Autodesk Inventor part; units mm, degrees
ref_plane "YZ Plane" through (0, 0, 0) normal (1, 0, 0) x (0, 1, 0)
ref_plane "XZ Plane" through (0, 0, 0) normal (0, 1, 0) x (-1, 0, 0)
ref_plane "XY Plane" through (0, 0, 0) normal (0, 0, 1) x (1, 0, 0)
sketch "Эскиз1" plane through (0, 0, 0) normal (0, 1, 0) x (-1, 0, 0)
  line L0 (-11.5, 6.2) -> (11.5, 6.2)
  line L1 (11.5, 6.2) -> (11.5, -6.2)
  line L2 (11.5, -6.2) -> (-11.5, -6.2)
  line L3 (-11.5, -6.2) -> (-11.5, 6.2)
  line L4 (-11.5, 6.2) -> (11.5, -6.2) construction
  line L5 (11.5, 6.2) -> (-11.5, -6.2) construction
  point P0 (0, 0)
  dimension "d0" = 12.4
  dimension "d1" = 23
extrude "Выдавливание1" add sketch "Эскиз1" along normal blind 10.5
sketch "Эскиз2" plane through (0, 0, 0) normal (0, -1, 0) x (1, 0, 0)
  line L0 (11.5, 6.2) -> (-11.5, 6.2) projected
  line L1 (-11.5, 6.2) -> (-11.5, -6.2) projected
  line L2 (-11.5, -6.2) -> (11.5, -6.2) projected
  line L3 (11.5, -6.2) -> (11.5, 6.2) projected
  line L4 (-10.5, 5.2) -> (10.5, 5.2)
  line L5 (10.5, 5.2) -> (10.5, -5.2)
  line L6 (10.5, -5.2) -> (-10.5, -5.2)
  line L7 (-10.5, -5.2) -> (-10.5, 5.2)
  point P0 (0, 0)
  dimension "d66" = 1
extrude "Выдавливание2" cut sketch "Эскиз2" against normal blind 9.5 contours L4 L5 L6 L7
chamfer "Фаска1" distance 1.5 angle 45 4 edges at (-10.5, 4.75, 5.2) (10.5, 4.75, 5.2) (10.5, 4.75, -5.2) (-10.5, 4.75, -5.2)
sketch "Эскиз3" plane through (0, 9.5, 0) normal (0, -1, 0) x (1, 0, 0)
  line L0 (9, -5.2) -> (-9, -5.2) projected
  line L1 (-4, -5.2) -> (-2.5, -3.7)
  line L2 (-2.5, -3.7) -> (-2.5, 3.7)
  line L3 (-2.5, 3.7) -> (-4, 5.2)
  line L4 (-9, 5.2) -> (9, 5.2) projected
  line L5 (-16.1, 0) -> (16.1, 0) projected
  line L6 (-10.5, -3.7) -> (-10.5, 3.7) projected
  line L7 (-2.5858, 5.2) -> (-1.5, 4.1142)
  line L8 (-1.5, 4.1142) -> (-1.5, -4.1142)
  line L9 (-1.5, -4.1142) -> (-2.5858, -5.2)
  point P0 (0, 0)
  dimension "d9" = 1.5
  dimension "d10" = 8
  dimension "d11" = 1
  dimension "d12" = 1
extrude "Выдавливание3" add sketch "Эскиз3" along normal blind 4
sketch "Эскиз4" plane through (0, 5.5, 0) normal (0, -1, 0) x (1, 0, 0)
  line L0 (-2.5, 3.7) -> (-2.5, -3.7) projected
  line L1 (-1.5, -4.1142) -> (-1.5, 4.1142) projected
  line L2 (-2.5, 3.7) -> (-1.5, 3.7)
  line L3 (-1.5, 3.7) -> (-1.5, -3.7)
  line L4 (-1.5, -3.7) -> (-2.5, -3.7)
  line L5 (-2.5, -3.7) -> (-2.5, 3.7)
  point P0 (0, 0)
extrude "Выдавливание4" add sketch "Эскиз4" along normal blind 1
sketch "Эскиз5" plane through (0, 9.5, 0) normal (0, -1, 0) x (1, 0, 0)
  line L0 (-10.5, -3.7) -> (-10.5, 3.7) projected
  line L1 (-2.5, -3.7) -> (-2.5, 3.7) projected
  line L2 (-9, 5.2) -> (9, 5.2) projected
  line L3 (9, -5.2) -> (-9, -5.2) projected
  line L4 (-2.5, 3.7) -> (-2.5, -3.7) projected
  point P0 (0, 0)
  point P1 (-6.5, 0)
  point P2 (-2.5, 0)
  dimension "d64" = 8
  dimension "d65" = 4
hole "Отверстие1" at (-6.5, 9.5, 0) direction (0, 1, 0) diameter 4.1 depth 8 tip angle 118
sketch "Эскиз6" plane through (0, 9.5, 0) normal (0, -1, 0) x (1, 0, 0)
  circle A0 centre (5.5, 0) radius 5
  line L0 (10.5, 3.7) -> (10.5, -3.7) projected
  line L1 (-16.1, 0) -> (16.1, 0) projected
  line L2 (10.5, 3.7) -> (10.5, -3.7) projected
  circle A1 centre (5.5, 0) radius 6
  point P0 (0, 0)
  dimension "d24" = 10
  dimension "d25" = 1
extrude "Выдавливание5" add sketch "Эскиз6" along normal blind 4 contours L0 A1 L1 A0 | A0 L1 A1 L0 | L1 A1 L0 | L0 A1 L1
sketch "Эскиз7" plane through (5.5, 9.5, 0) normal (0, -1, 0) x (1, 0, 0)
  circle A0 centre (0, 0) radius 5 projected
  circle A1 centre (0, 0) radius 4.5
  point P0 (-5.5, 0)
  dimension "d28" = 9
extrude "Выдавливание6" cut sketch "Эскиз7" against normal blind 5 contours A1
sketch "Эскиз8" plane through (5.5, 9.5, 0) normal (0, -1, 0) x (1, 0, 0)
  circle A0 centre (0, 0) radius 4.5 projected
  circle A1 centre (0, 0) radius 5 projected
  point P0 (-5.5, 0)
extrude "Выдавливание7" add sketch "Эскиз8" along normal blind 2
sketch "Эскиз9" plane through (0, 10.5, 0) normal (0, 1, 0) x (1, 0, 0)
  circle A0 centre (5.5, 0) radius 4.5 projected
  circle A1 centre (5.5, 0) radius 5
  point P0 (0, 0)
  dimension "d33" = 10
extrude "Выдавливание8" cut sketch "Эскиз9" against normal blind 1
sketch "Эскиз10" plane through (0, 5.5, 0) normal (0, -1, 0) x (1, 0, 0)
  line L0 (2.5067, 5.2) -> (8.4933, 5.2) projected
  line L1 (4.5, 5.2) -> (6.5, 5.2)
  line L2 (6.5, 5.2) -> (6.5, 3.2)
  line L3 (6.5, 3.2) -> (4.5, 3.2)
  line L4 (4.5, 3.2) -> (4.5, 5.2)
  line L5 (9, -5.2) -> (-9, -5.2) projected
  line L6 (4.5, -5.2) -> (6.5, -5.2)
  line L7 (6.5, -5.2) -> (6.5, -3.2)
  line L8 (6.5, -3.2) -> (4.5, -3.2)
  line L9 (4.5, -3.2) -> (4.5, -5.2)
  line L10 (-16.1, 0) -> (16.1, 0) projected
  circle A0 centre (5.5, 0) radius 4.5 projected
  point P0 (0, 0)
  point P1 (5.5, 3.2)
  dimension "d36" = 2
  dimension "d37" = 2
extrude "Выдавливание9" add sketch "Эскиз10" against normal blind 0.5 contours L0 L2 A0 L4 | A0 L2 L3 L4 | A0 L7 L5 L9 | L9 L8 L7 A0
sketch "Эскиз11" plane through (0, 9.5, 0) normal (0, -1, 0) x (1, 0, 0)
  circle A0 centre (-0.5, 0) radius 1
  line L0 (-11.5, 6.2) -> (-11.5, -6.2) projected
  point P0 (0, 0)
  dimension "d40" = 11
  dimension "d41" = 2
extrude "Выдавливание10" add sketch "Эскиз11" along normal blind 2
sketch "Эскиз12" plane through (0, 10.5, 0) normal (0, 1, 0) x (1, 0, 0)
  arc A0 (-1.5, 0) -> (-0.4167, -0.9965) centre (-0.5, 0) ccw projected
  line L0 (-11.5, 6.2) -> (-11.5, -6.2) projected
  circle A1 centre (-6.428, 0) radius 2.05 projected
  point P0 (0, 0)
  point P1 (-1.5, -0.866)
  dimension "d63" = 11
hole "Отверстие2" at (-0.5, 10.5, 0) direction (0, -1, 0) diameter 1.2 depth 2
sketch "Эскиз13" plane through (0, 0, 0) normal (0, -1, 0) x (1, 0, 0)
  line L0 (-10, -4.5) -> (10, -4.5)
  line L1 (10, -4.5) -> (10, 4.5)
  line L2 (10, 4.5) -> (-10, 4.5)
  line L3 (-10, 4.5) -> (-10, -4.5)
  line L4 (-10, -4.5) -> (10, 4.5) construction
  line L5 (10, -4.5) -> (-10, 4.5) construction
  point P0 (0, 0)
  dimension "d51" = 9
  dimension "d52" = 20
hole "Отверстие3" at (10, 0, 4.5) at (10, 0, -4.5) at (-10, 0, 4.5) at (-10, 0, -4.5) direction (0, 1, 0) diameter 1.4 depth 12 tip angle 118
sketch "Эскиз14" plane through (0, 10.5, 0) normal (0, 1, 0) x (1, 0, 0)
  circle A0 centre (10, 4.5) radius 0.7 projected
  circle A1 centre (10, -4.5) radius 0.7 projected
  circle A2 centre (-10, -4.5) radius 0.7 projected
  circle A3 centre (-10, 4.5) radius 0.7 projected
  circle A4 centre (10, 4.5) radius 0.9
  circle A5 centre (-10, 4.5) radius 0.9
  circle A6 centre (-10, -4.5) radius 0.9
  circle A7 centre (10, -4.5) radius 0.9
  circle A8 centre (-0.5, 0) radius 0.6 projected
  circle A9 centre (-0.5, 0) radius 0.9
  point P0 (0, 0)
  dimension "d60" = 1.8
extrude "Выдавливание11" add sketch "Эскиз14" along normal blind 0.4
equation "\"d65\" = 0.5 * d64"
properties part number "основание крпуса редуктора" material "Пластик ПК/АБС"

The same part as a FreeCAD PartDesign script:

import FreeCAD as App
import Part
import Sketcher
from FreeCAD import Vector
Q = App.Units.Quantity


def edges_at(feature, points):
    """Names of the edges that pass closest to the given points."""
    edges = feature.Shape.Edges
    near = lambda p: min(range(len(edges)), key=lambda i: edges[i].distToShape(Part.Vertex(*p))[0])
    return sorted({f"Edge{near(p) + 1}" for p in points})


def add_polygon(sketch, points):
    """Adds a closed chain of lines whose ends are joined by coincident constraints."""
    first, n = sketch.GeometryCount, len(points)
    for a, b in zip(points, points[1:] + points[:1]):
        sketch.addGeometry(Part.LineSegment(App.Vector(*a, 0), App.Vector(*b, 0)), False)
    for i in range(n):
        sketch.addConstraint(Sketcher.Constraint("Coincident", first + i, 2, first + (i + 1) % n, 1))

doc = App.newDocument("Part")
body = doc.addObject("PartDesign::Body", "Body")

# Sketch on XZ plane
sketch1 = body.newObject("Sketcher::SketchObject", "Sketch")
sketch1.AttachmentSupport = (doc.getObject("XZ_Plane"), [""])
sketch1.MapMode = "FlatFace"
add_polygon(sketch1, [(-11.5, 6.2), (11.5, 6.2), (11.5, -6.2), (-11.5, -6.2)])  # lines 0-3
sketch1.addConstraint([
    Sketcher.Constraint("Horizontal", 0),
    Sketcher.Constraint("Vertical", 1),
    Sketcher.Constraint("Horizontal", 2),
    Sketcher.Constraint("Vertical", 3),
    Sketcher.Constraint("Symmetric", 0, 2, 2, 2, -1, 1),
    Sketcher.Constraint("DistanceX", 0, 1, 0, 2, Q("23 mm")),
    Sketcher.Constraint("DistanceY", 1, 2, 1, 1, Q("12.4 mm")),
])
pad1 = body.newObject("PartDesign::Pad", "Pad")
pad1.Profile = sketch1
pad1.Length = 10.5
pad1.Reversed = True

# Sketch on XZ plane
sketch2 = body.newObject("Sketcher::SketchObject", "Sketch001")
sketch2.AttachmentSupport = (doc.getObject("XZ_Plane"), [""])
sketch2.MapMode = "FlatFace"
add_polygon(sketch2, [(10.5, 5.2), (-10.5, 5.2), (-10.5, -5.2), (10.5, -5.2)])  # lines 0-3
sketch2.addConstraint([
    Sketcher.Constraint("Horizontal", 0),
    Sketcher.Constraint("Vertical", 1),
    Sketcher.Constraint("Horizontal", 2),
    Sketcher.Constraint("Vertical", 3),
    Sketcher.Constraint("Symmetric", 0, 2, 2, 2, -1, 1),
    Sketcher.Constraint("DistanceX", 0, 2, 0, 1, Q("21 mm")),
    Sketcher.Constraint("DistanceY", 1, 2, 1, 1, Q("10.4 mm")),
])
pocket1 = body.newObject("PartDesign::Pocket", "Pocket")
pocket1.Profile = sketch2
pocket1.Length = 9.5
doc.recompute()

chamfer = body.newObject("PartDesign::Chamfer", "Chamfer")
chamfer.Base = (pocket1, edges_at(pocket1, [
    (-10.5, 4.75, 5.2),
    (10.5, 4.75, 5.2),
    (10.5, 4.75, -5.2),
    (-10.5, 4.75, -5.2),
]))
chamfer.Size = 1.5

# Sketch on XZ plane
sketch3 = body.newObject("Sketcher::SketchObject", "Sketch002")
sketch3.AttachmentSupport = (doc.getObject("XZ_Plane"), [""])
sketch3.MapMode = "FlatFace"
sketch3.AttachmentOffset = App.Placement(Vector(0, 0, -9.5), App.Rotation())
add_polygon(sketch3, [(-4, -5.2), (-2.5858, -5.2), (-1.5, -4.1142), (-1.5, 4.1142), (-2.5858, 5.2), (-4, 5.2), (-2.5, 3.7), (-2.5, -3.7)])  # lines 0-7
sketch3.addConstraint([
    Sketcher.Constraint("Horizontal", 0),
    Sketcher.Constraint("Vertical", 2),
    Sketcher.Constraint("Horizontal", 4),
    Sketcher.Constraint("Vertical", 6),
    Sketcher.Constraint("Symmetric", 0, 2, 3, 2, -1),
    Sketcher.Constraint("Perpendicular", 1, 3),
    Sketcher.Constraint("Parallel", 3, 5),
    Sketcher.Constraint("Perpendicular", 5, 7),
    Sketcher.Constraint("Vertical", 4, 2, 7, 2),
    Sketcher.Constraint("Equal", 1, 3),
    Sketcher.Constraint("DistanceX", 5, 2, 2, 2, Q("1 mm")),
    Sketcher.Constraint("DistanceX", 1, 2, -1, 1, Q("1.5 mm")),
    Sketcher.Constraint("DistanceY", 5, 2, 3, 2, Q("1.5 mm")),
    Sketcher.Constraint("DistanceY", 6, 2, 6, 1, Q("7.4 mm")),
    Sketcher.Constraint("DistanceX", 0, 1, 0, 2, Q("1.4142 mm")),
])
pad2 = body.newObject("PartDesign::Pad", "Pad001")
pad2.Profile = sketch3
pad2.Length = 4

# Sketch on XZ plane
sketch4 = body.newObject("Sketcher::SketchObject", "Sketch003")
sketch4.AttachmentSupport = (doc.getObject("XZ_Plane"), [""])
sketch4.MapMode = "FlatFace"
sketch4.AttachmentOffset = App.Placement(Vector(0, 0, -5.5), App.Rotation())
add_polygon(sketch4, [(-1.5, 3.7), (-2.5, 3.7), (-2.5, -3.7), (-1.5, -3.7)])  # lines 0-3
sketch4.addConstraint([
    Sketcher.Constraint("Horizontal", 0),
    Sketcher.Constraint("Vertical", 1),
    Sketcher.Constraint("Horizontal", 2),
    Sketcher.Constraint("Vertical", 3),
    Sketcher.Constraint("DistanceX", 0, 2, 0, 1, Q("1 mm")),
    Sketcher.Constraint("DistanceY", 1, 2, 1, 1, Q("7.4 mm")),
    Sketcher.Constraint("DistanceX", 0, 2, -1, 1, Q("2.5 mm")),
    Sketcher.Constraint("DistanceY", -1, 1, 0, 2, Q("3.7 mm")),
])
pad3 = body.newObject("PartDesign::Pad", "Pad002")
pad3.Profile = sketch4
pad3.Length = 1

# Sketch on XZ plane
sketch5 = body.newObject("Sketcher::SketchObject", "Sketch004")
sketch5.AttachmentSupport = (doc.getObject("XZ_Plane"), [""])
sketch5.MapMode = "FlatFace"
sketch5.AttachmentOffset = App.Placement(Vector(0, 0, -9.5), App.Rotation())
sketch5.addGeometry(Part.Circle(Vector(-6.5, 0, 0), Vector(0, 0, 1), 2.05), False)
sketch5.addConstraint([
    Sketcher.Constraint("PointOnObject", 0, 3, -1),
    Sketcher.Constraint("Diameter", 0, Q("4.1 mm")),
    Sketcher.Constraint("DistanceX", 0, 3, -1, 1, Q("6.5 mm")),
])
doc.recompute()
hole = body.newObject("PartDesign::Hole", "Hole")
hole.Profile = sketch5
hole.ThreadType = "None"
hole.Diameter = 4.1
hole.DepthType = "Dimension"
hole.Depth = 8
hole.DrillPoint = "Angled"
hole.DrillPointAngle = 118

# Sketch on XZ plane
sketch6 = body.newObject("Sketcher::SketchObject", "Sketch005")
sketch6.AttachmentSupport = (doc.getObject("XZ_Plane"), [""])
sketch6.MapMode = "FlatFace"
sketch6.AttachmentOffset = App.Placement(Vector(0, 0, -9.5), App.Rotation())
sketch6.addGeometry([
    Part.Circle(Vector(5.5, 0, 0), Vector(0, 0, 1), 6),
    Part.Circle(Vector(5.5, 0, 0), Vector(0, 0, 1), 5),
], False)
sketch6.addConstraint([
    Sketcher.Constraint("Coincident", 1, 3, 0, 3),
    Sketcher.Constraint("PointOnObject", 0, 3, -1),
    Sketcher.Constraint("Diameter", 1, Q("10 mm")),
    Sketcher.Constraint("Diameter", 0, Q("12 mm")),
    Sketcher.Constraint("DistanceX", -1, 1, 0, 3, Q("5.5 mm")),
])
pad4 = body.newObject("PartDesign::Pad", "Pad003")
pad4.Profile = sketch6
pad4.Length = 4

# Sketch on XZ plane
sketch7 = body.newObject("Sketcher::SketchObject", "Sketch006")
sketch7.AttachmentSupport = (doc.getObject("XZ_Plane"), [""])
sketch7.MapMode = "FlatFace"
sketch7.AttachmentOffset = App.Placement(Vector(0, 0, -9.5), App.Rotation())
sketch7.addGeometry(Part.Circle(Vector(5.5, 0, 0), Vector(0, 0, 1), 4.5), False)
sketch7.addConstraint([
    Sketcher.Constraint("PointOnObject", 0, 3, -1),
    Sketcher.Constraint("Diameter", 0, Q("9 mm")),
    Sketcher.Constraint("DistanceX", -1, 1, 0, 3, Q("5.5 mm")),
])
pocket2 = body.newObject("PartDesign::Pocket", "Pocket001")
pocket2.Profile = sketch7
pocket2.Length = 5

# Sketch on XZ plane
sketch8 = body.newObject("Sketcher::SketchObject", "Sketch007")
sketch8.AttachmentSupport = (doc.getObject("XZ_Plane"), [""])
sketch8.MapMode = "FlatFace"
sketch8.AttachmentOffset = App.Placement(Vector(0, 0, -9.5), App.Rotation())
sketch8.addGeometry([
    Part.Circle(Vector(5.5, 0, 0), Vector(0, 0, 1), 5),
    Part.Circle(Vector(5.5, 0, 0), Vector(0, 0, 1), 4.5),
], False)
sketch8.addConstraint([
    Sketcher.Constraint("Coincident", 1, 3, 0, 3),
    Sketcher.Constraint("PointOnObject", 0, 3, -1),
    Sketcher.Constraint("Diameter", 0, Q("10 mm")),
    Sketcher.Constraint("Diameter", 1, Q("9 mm")),
    Sketcher.Constraint("DistanceX", -1, 1, 0, 3, Q("5.5 mm")),
])
pad5 = body.newObject("PartDesign::Pad", "Pad004")
pad5.Profile = sketch8
pad5.Length = 2

# Sketch on XZ plane
sketch9 = body.newObject("Sketcher::SketchObject", "Sketch008")
sketch9.AttachmentSupport = (doc.getObject("XZ_Plane"), [""])
sketch9.MapMode = "FlatFace"
sketch9.AttachmentOffset = App.Placement(Vector(0, 0, -10.5), App.Rotation())
sketch9.addGeometry([
    Part.Circle(Vector(5.5, 0, 0), Vector(0, 0, 1), 5),
    Part.Circle(Vector(5.5, 0, 0), Vector(0, 0, 1), 4.5),
], False)
sketch9.addConstraint([
    Sketcher.Constraint("Coincident", 1, 3, 0, 3),
    Sketcher.Constraint("PointOnObject", 0, 3, -1),
    Sketcher.Constraint("Diameter", 0, Q("10 mm")),
    Sketcher.Constraint("Diameter", 1, Q("9 mm")),
    Sketcher.Constraint("DistanceX", -1, 1, 0, 3, Q("5.5 mm")),
])
pocket3 = body.newObject("PartDesign::Pocket", "Pocket002")
pocket3.Profile = sketch9
pocket3.Length = 1
pocket3.Reversed = True

# Sketch on XZ plane
sketch10 = body.newObject("Sketcher::SketchObject", "Sketch009")
sketch10.AttachmentSupport = (doc.getObject("XZ_Plane"), [""])
sketch10.MapMode = "FlatFace"
sketch10.AttachmentOffset = App.Placement(Vector(0, 0, -5.5), App.Rotation())
add_polygon(sketch10, [(6.5, 5.2), (4.5, 5.2), (4.5, 3.2), (6.5, 3.2)])  # lines 0-3
add_polygon(sketch10, [(6.5, -5.2), (6.5, -3.2), (4.5, -3.2), (4.5, -5.2)])  # lines 4-7
sketch10.addConstraint([
    Sketcher.Constraint("Horizontal", 0),
    Sketcher.Constraint("Vertical", 1),
    Sketcher.Constraint("Horizontal", 2),
    Sketcher.Constraint("Vertical", 3),
    Sketcher.Constraint("Vertical", 4),
    Sketcher.Constraint("Horizontal", 5),
    Sketcher.Constraint("Vertical", 6),
    Sketcher.Constraint("Horizontal", 7),
    Sketcher.Constraint("Symmetric", 2, 2, 4, 2, -1),
    Sketcher.Constraint("Symmetric", 0, 2, 6, 2, -1),
    Sketcher.Constraint("Equal", 7, 1),
    Sketcher.Constraint("DistanceX", 0, 2, 0, 1, Q("2 mm")),
    Sketcher.Constraint("DistanceX", -1, 1, 0, 2, Q("4.5 mm")),
    Sketcher.Constraint("DistanceY", -1, 1, 0, 2, Q("5.2 mm")),
])
pad6 = body.newObject("PartDesign::Pad", "Pad005")
pad6.Profile = sketch10
pad6.Length = 0.5
pad6.Reversed = True

# Sketch on XZ plane
sketch11 = body.newObject("Sketcher::SketchObject", "Sketch010")
sketch11.AttachmentSupport = (doc.getObject("XZ_Plane"), [""])
sketch11.MapMode = "FlatFace"
sketch11.AttachmentOffset = App.Placement(Vector(0, 0, -9.5), App.Rotation())
sketch11.addGeometry(Part.Circle(Vector(-0.5, 0, 0), Vector(0, 0, 1), 1), False)
sketch11.addConstraint([
    Sketcher.Constraint("PointOnObject", 0, 3, -1),
    Sketcher.Constraint("Diameter", 0, Q("2 mm")),
    Sketcher.Constraint("DistanceX", 0, 3, -1, 1, Q("0.5 mm")),
])
pad7 = body.newObject("PartDesign::Pad", "Pad006")
pad7.Profile = sketch11
pad7.Length = 2

# Sketch on XZ plane
sketch12 = body.newObject("Sketcher::SketchObject", "Sketch011")
sketch12.AttachmentSupport = (doc.getObject("XZ_Plane"), [""])
sketch12.MapMode = "FlatFace"
sketch12.AttachmentOffset = App.Placement(Vector(0, 0, -10.5), App.Rotation())
sketch12.addGeometry(Part.Circle(Vector(-0.5, 0, 0), Vector(0, 0, 1), 0.6), False)
sketch12.addConstraint([
    Sketcher.Constraint("PointOnObject", 0, 3, -1),
    Sketcher.Constraint("Diameter", 0, Q("1.2 mm")),
    Sketcher.Constraint("DistanceX", 0, 3, -1, 1, Q("0.5 mm")),
])
doc.recompute()
hole2 = body.newObject("PartDesign::Hole", "Hole001")
hole2.Profile = sketch12
hole2.ThreadType = "None"
hole2.Diameter = 1.2
hole2.DepthType = "Dimension"
hole2.Depth = 2
hole2.DrillPoint = "Flat"
hole2.Reversed = True

# Sketch on XZ plane
sketch13 = body.newObject("Sketcher::SketchObject", "Sketch012")
sketch13.AttachmentSupport = (doc.getObject("XZ_Plane"), [""])
sketch13.MapMode = "FlatFace"
sketch13.addGeometry([
    Part.Circle(Vector(10, 4.5, 0), Vector(0, 0, 1), 0.7),
    Part.Circle(Vector(10, -4.5, 0), Vector(0, 0, 1), 0.7),
    Part.Circle(Vector(-10, 4.5, 0), Vector(0, 0, 1), 0.7),
    Part.Circle(Vector(-10, -4.5, 0), Vector(0, 0, 1), 0.7),
], False)
sketch13.addConstraint([
    Sketcher.Constraint("Equal", 0, 1),
    Sketcher.Constraint("Equal", 1, 2),
    Sketcher.Constraint("Equal", 2, 3),
    Sketcher.Constraint("Symmetric", 1, 3, 2, 3, -1, 1),
    Sketcher.Constraint("Symmetric", 0, 3, 3, 3, -1, 1),
    Sketcher.Constraint("Symmetric", 0, 3, 2, 3, -2),
    Sketcher.Constraint("Diameter", 0, Q("1.4 mm")),
    Sketcher.Constraint("DistanceX", -1, 1, 0, 3, Q("10 mm")),
    Sketcher.Constraint("DistanceY", 1, 3, 0, 3, Q("9 mm")),
])
doc.recompute()
hole3 = body.newObject("PartDesign::Hole", "Hole002")
hole3.Profile = sketch13
hole3.ThreadType = "None"
hole3.Diameter = 1.4
hole3.DepthType = "Dimension"
hole3.Depth = 12
hole3.DrillPoint = "Angled"
hole3.DrillPointAngle = 118

# Sketch on XZ plane
sketch14 = body.newObject("Sketcher::SketchObject", "Sketch013")
sketch14.AttachmentSupport = (doc.getObject("XZ_Plane"), [""])
sketch14.MapMode = "FlatFace"
sketch14.AttachmentOffset = App.Placement(Vector(0, 0, -10.5), App.Rotation())
sketch14.addGeometry([
    Part.Circle(Vector(10, -4.5, 0), Vector(0, 0, 1), 0.9),  # 0
    Part.Circle(Vector(10, -4.5, 0), Vector(0, 0, 1), 0.7),  # 1
    Part.Circle(Vector(-10, -4.5, 0), Vector(0, 0, 1), 0.9),  # 2
    Part.Circle(Vector(-10, -4.5, 0), Vector(0, 0, 1), 0.7),  # 3
    Part.Circle(Vector(-10, 4.5, 0), Vector(0, 0, 1), 0.9),  # 4
    Part.Circle(Vector(-10, 4.5, 0), Vector(0, 0, 1), 0.7),  # 5
    Part.Circle(Vector(10, 4.5, 0), Vector(0, 0, 1), 0.9),  # 6
    Part.Circle(Vector(10, 4.5, 0), Vector(0, 0, 1), 0.7),  # 7
    Part.Circle(Vector(-0.5, 0, 0), Vector(0, 0, 1), 0.9),  # 8
    Part.Circle(Vector(-0.5, 0, 0), Vector(0, 0, 1), 0.6),  # 9
], False)
sketch14.addConstraint([
    Sketcher.Constraint("Coincident", 1, 3, 0, 3),
    Sketcher.Constraint("Coincident", 3, 3, 2, 3),
    Sketcher.Constraint("Coincident", 5, 3, 4, 3),
    Sketcher.Constraint("Coincident", 7, 3, 6, 3),
    Sketcher.Constraint("Coincident", 9, 3, 8, 3),
    Sketcher.Constraint("Equal", 0, 2),
    Sketcher.Constraint("Equal", 1, 3),
    Sketcher.Constraint("Equal", 2, 4),
    Sketcher.Constraint("Equal", 3, 5),
    Sketcher.Constraint("Equal", 4, 6),
    Sketcher.Constraint("Equal", 5, 7),
    Sketcher.Constraint("Equal", 6, 8),
    Sketcher.Constraint("Symmetric", 0, 3, 4, 3, -1, 1),
    Sketcher.Constraint("Symmetric", 2, 3, 6, 3, -1, 1),
    Sketcher.Constraint("Symmetric", 0, 3, 2, 3, -2),
    Sketcher.Constraint("PointOnObject", 8, 3, -1),
    Sketcher.Constraint("Diameter", 0, Q("1.8 mm")),
    Sketcher.Constraint("Diameter", 1, Q("1.4 mm")),
    Sketcher.Constraint("Diameter", 9, Q("1.2 mm")),
    Sketcher.Constraint("DistanceX", -1, 1, 0, 3, Q("10 mm")),
    Sketcher.Constraint("DistanceY", 2, 3, 4, 3, Q("9 mm")),
    Sketcher.Constraint("DistanceX", 8, 3, -1, 1, Q("0.5 mm")),
])
pad8 = body.newObject("PartDesign::Pad", "Pad007")
pad8.Profile = sketch14
pad8.Length = 0.4
pad8.Reversed = True

doc.recompute()
